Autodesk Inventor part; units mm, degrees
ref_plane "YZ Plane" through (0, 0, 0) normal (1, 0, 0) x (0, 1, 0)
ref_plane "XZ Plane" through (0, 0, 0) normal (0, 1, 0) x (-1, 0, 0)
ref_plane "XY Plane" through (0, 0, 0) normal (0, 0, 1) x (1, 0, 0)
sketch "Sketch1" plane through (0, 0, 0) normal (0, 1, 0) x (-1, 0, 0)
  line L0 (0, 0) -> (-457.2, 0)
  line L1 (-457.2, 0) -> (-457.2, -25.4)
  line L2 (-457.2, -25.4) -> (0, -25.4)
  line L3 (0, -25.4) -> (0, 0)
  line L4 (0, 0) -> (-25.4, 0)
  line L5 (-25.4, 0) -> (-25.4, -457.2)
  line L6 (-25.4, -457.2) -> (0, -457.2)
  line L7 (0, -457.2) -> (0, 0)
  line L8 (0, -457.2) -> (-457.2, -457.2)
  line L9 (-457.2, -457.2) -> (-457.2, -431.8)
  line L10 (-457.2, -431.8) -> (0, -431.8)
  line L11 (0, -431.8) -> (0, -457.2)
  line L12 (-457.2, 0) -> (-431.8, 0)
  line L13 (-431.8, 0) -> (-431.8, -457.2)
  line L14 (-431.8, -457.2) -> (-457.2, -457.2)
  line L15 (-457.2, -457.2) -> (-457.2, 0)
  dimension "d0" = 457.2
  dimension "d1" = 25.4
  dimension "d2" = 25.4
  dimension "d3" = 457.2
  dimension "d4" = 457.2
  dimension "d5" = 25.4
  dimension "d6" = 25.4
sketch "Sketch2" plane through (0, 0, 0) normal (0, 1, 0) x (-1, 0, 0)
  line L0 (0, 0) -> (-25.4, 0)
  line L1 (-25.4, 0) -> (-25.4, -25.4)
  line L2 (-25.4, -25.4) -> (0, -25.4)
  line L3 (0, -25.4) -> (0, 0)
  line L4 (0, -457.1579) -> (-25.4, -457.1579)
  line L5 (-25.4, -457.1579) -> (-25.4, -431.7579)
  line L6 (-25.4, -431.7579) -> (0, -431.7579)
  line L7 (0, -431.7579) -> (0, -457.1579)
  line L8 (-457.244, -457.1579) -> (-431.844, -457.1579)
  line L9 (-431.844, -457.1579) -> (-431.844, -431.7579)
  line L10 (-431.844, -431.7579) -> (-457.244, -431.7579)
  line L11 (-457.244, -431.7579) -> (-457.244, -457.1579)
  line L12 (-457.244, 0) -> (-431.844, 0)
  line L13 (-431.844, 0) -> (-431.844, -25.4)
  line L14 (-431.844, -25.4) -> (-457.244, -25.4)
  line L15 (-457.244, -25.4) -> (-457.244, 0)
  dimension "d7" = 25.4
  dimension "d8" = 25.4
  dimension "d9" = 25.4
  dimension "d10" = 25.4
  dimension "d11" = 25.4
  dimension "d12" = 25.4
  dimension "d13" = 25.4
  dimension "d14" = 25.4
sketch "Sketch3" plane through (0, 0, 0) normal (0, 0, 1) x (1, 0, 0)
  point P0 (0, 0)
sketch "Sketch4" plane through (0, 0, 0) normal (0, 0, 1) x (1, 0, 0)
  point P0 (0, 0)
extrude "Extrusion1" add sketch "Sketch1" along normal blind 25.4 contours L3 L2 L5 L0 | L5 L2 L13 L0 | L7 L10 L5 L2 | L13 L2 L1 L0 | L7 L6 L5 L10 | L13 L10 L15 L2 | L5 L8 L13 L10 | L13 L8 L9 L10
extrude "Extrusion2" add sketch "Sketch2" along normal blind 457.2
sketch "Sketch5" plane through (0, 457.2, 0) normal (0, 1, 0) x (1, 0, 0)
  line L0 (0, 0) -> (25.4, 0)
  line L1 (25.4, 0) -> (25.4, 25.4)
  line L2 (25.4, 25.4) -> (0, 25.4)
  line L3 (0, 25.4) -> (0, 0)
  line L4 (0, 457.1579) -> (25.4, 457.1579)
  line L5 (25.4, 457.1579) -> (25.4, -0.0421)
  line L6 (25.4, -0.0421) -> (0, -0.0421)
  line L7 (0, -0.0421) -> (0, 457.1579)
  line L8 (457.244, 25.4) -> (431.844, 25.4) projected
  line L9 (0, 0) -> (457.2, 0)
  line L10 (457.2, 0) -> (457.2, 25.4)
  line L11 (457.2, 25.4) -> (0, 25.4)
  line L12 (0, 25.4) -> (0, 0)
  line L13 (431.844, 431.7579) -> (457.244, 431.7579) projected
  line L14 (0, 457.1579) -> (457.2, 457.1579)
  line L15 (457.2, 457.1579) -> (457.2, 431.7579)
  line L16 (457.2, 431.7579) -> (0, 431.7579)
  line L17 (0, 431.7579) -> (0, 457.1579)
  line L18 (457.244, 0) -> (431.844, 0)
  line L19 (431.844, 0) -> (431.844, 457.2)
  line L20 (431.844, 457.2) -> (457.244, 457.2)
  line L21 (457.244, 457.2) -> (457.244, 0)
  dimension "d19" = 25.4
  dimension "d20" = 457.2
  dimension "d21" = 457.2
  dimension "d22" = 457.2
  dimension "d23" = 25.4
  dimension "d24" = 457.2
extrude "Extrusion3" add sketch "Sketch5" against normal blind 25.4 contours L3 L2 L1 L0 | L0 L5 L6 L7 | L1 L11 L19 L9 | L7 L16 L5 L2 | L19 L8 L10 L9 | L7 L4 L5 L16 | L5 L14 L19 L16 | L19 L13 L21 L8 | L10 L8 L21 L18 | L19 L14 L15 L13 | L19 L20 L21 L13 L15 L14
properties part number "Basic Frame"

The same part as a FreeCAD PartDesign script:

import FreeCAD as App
import Part
import Sketcher
from FreeCAD import Vector
Q = App.Units.Quantity


def add_polygon(sketch, points):
    """Adds a closed chain of lines whose ends are joined by coincident constraints."""
    first, n = sketch.GeometryCount, len(points)
    for a, b in zip(points, points[1:] + points[:1]):
        sketch.addGeometry(Part.LineSegment(App.Vector(*a, 0), App.Vector(*b, 0)), False)
    for i in range(n):
        sketch.addConstraint(Sketcher.Constraint("Coincident", first + i, 2, first + (i + 1) % n, 1))

doc = App.newDocument("Part")
body = doc.addObject("PartDesign::Body", "Body")

sketch1 = doc.addObject("Sketcher::SketchObject", "Sketch")
body.addObject(sketch1)
sketch1.AttachmentSupport = (doc.XZ_Plane, [""])
sketch1.MapMode = "FlatFace"
add_polygon(sketch1, [(0, 0), (457, 0), (457, -457), (0, -457)])
add_polygon(sketch1, [(25, -25), (25, -432), (432, -432), (432, -25)])
sketch1.addConstraint([
    Sketcher.Constraint("Horizontal", 0),
    Sketcher.Constraint("Vertical", 1),
    Sketcher.Constraint("Horizontal", 2),
    Sketcher.Constraint("Vertical", 3),
    Sketcher.Constraint("Vertical", 4),
    Sketcher.Constraint("Horizontal", 5),
    Sketcher.Constraint("Vertical", 6),
    Sketcher.Constraint("Horizontal", 7),
    Sketcher.Constraint("Coincident", 3, 2, -1, 1),
    Sketcher.Constraint("Equal", 2, 1),
    Sketcher.Constraint("Equal", 7, 4),
    Sketcher.Constraint("DistanceX", 0, 1, 0, 2, Q("18 in")),
    Sketcher.Constraint("DistanceX", -1, 1, 4, 2, Q("1 in")),
    Sketcher.Constraint("DistanceY", 6, 2, -1, 1, Q("1 in")),
    Sketcher.Constraint("DistanceY", 2, 2, 4, 2, Q("1 in")),
])
pad1 = doc.addObject("PartDesign::Pad", "Pad")
body.addObject(pad1)
pad1.Profile = sketch1
pad1.Length = Q("1 in")
pad1.Reversed = True

sketch2 = doc.addObject("Sketcher::SketchObject", "Sketch001")
body.addObject(sketch2)
sketch2.AttachmentSupport = (doc.XZ_Plane, [""])
sketch2.MapMode = "FlatFace"
add_polygon(sketch2, [(0, -25), (0, 0), (25, 0), (25, -25)])
add_polygon(sketch2, [(25, -457), (0, -457), (0, -432), (25, -432)])
add_polygon(sketch2, [(457, -432), (457, -457), (432, -457), (432, -432)])
add_polygon(sketch2, [(432, 0), (457, 0), (457, -25), (432, -25)])
sketch2.addConstraint([
    Sketcher.Constraint("Vertical", 0),
    Sketcher.Constraint("Horizontal", 1),
    Sketcher.Constraint("Vertical", 2),
    Sketcher.Constraint("Horizontal", 3),
    Sketcher.Constraint("Horizontal", 4),
    Sketcher.Constraint("Vertical", 5),
    Sketcher.Constraint("Horizontal", 6),
    Sketcher.Constraint("Vertical", 7),
    Sketcher.Constraint("Vertical", 8),
    Sketcher.Constraint("Horizontal", 9),
    Sketcher.Constraint("Vertical", 10),
    Sketcher.Constraint("Horizontal", 11),
    Sketcher.Constraint("Horizontal", 12),
    Sketcher.Constraint("Vertical", 13),
    Sketcher.Constraint("Horizontal", 14),
    Sketcher.Constraint("Vertical", 15),
    Sketcher.Constraint("Coincident", 0, 2, -1, 1),
    Sketcher.Constraint("PointOnObject", 4, 2, -2),
    Sketcher.Constraint("PointOnObject", 12, 2, -1),
    Sketcher.Constraint("Horizontal", 7, 2, 8, 2),
    Sketcher.Constraint("Horizontal", 6, 2, 10, 2),
    Sketcher.Constraint("Horizontal", 3, 2, 13, 2),
    Sketcher.Constraint("Vertical", 2, 2, 6, 2),
    Sketcher.Constraint("Vertical", 11, 2, 12, 2),
    Sketcher.Constraint("Vertical", 10, 2, 14, 2),
    Sketcher.Constraint("Equal", 6, 9),
    Sketcher.Constraint("Equal", 14, 0),
    Sketcher.Constraint("Equal", 2, 5),
    Sketcher.Constraint("DistanceX", 1, 1, 1, 2, Q("1 in")),
    Sketcher.Constraint("DistanceY", 4, 2, -1, 1, 457.158),
    Sketcher.Constraint("DistanceX", -1, 1, 8, 2, 457.244),
])
pad2 = doc.addObject("PartDesign::Pad", "Pad001")
body.addObject(pad2)
pad2.Profile = sketch2
pad2.Length = Q("18 in")
pad2.Reversed = True

sketch3 = doc.addObject("Sketcher::SketchObject", "Sketch002")
body.addObject(sketch3)
sketch3.AttachmentSupport = (doc.XZ_Plane, [""])
sketch3.MapMode = "FlatFace"
sketch3.AttachmentOffset = App.Placement(Vector(0, 0, -18 * 25.4), App.Rotation())
add_polygon(sketch3, [(0, 0.042), (25.4, 0.042), (25.4, 0), (457.244, 0), (457.244, -457.2), (431.844, -457.2), (431.844, -457.158), (0, -457.158)])
add_polygon(sketch3, [(25.4, -25.4), (25.4, -431.758), (431.844, -431.758), (431.844, -25.4)])
sketch3.addConstraint([
    Sketcher.Constraint("Horizontal", 0),
    Sketcher.Constraint("Vertical", 1),
    Sketcher.Constraint("Horizontal", 2),
    Sketcher.Constraint("Vertical", 3),
    Sketcher.Constraint("Horizontal", 4),
    Sketcher.Constraint("Vertical", 5),
    Sketcher.Constraint("Horizontal", 6),
    Sketcher.Constraint("Vertical", 7),
    Sketcher.Constraint("Vertical", 8),
    Sketcher.Constraint("Horizontal", 9),
    Sketcher.Constraint("Vertical", 10),
    Sketcher.Constraint("Horizontal", 11),
    Sketcher.Constraint("PointOnObject", 1, 2, -1),
    Sketcher.Constraint("PointOnObject", 6, 2, -2),
    Sketcher.Constraint("Vertical", 1, 2, 8, 2),
    Sketcher.Constraint("Vertical", 5, 2, 9, 2),
    Sketcher.Constraint("Equal", 0, 4),
    Sketcher.Constraint("Equal", 1, 5),
    Sketcher.Constraint("DistanceX", 0, 1, 0, 2, Q("1 in")),
    Sketcher.Constraint("DistanceY", 3, 2, 3, 1, Q("18 in")),
    Sketcher.Constraint("DistanceY", 10, 2, -1, 1, Q("1 in")),
    Sketcher.Constraint("DistanceY", 6, 2, 8, 2, Q("1 in")),
    Sketcher.Constraint("DistanceX", 2, 1, 2, 2, 431.844),
    Sketcher.Constraint("DistanceY", 1, 2, 1, 1, 0.042),
])
pad3 = doc.addObject("PartDesign::Pad", "Pad002")
body.addObject(pad3)
pad3.Profile = sketch3
pad3.Length = Q("1 in")

doc.recompute()
